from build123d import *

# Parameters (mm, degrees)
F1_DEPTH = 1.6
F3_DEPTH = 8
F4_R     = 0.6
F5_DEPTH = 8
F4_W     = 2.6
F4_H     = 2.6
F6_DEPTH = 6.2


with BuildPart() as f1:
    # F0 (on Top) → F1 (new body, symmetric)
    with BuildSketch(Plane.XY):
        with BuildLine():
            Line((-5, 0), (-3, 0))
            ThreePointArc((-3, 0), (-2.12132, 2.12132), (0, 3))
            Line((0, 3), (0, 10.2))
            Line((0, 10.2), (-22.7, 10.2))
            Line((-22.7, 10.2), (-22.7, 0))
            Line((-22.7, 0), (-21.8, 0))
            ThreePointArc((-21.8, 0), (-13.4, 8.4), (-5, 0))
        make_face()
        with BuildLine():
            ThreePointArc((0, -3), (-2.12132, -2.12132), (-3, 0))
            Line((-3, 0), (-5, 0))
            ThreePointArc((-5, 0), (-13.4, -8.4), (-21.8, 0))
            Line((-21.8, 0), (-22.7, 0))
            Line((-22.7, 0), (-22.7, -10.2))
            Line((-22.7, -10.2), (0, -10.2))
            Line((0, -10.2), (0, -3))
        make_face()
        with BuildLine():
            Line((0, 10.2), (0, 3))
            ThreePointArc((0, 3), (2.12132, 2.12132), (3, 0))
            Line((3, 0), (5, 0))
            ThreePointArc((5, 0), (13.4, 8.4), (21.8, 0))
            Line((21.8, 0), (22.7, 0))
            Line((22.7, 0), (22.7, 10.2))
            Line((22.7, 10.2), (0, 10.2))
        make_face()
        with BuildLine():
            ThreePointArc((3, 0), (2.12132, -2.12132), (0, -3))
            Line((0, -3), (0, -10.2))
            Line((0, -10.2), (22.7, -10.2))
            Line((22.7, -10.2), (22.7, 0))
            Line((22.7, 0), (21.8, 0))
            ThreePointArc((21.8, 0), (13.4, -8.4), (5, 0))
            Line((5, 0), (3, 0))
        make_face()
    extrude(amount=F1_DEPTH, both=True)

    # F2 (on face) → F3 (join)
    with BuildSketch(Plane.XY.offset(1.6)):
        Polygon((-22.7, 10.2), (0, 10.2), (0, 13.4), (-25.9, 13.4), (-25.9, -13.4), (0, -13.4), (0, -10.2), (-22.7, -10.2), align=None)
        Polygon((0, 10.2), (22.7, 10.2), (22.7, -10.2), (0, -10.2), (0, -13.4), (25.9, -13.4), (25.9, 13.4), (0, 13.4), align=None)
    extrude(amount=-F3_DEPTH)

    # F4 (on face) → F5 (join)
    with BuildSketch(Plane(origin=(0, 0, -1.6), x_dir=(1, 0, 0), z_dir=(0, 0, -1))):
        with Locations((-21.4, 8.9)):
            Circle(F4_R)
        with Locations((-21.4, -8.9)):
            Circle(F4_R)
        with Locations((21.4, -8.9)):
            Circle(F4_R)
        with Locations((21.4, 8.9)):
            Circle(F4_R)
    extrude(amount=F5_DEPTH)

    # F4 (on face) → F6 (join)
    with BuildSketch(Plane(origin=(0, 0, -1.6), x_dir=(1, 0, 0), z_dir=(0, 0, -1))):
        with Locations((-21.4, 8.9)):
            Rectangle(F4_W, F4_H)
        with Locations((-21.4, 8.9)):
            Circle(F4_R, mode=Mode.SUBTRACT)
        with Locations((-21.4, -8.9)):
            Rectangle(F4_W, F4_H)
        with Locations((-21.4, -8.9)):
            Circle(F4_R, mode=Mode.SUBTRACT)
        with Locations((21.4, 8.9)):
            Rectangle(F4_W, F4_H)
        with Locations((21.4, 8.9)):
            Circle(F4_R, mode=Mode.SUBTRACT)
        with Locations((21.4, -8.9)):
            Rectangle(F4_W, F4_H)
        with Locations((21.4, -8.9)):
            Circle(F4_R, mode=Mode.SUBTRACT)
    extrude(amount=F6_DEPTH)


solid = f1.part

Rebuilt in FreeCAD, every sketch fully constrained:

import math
import FreeCAD as App
import Part
import Sketcher
from FreeCAD import Vector
Q = App.Units.Quantity

doc = App.newDocument("Part")
body = doc.addObject("PartDesign::Body", "Body")

# Sketch on XY plane
sketch1 = body.newObject("Sketcher::SketchObject", "Sketch")
sketch1.AttachmentSupport = (doc.getObject("XY_Plane"), [""])
sketch1.MapMode = "FlatFace"
sketch1.addGeometry(Part.LineSegment(Vector(22.7, 10.2, 0), Vector(-22.7, 10.2, 0)), False)
sketch1.addGeometry(Part.LineSegment(Vector(-22.7, 10.2, 0), Vector(-22.7, -10.2, 0)), False)
sketch1.addGeometry(Part.LineSegment(Vector(-22.7, -10.2, 0), Vector(22.7, -10.2, 0)), False)
sketch1.addGeometry(Part.LineSegment(Vector(22.7, -10.2, 0), Vector(22.7, 10.2, 0)), False)
sketch1.addGeometry(Part.ArcOfCircle(Part.Circle(Vector(0, 0, 0), Vector(0, 0, 1), 3), math.radians(90), math.radians(180)), False)
sketch1.addGeometry(Part.ArcOfCircle(Part.Circle(Vector(0, 0, 0), Vector(0, 0, 1), 3), math.radians(0), math.radians(90)), False)
sketch1.addGeometry(Part.ArcOfCircle(Part.Circle(Vector(0, 0, 0), Vector(0, 0, 1), 3), math.radians(-90), math.radians(0)), False)
sketch1.addGeometry(Part.ArcOfCircle(Part.Circle(Vector(0, 0, 0), Vector(0, 0, 1), 3), math.radians(-180), math.radians(-90)), False)
sketch1.addGeometry(Part.Circle(Vector(13.4, 0, 0), Vector(0, 0, 1), 8.4), False)
sketch1.addGeometry(Part.Circle(Vector(-13.4, 0, 0), Vector(0, 0, 1), 8.4), False)
sketch1.addConstraint(Sketcher.Constraint("Coincident", 0, 2, 1, 1))
sketch1.addConstraint(Sketcher.Constraint("Coincident", 1, 2, 2, 1))
sketch1.addConstraint(Sketcher.Constraint("Coincident", 2, 2, 3, 1))
sketch1.addConstraint(Sketcher.Constraint("Coincident", 3, 2, 0, 1))
sketch1.addConstraint(Sketcher.Constraint("Tangent", 4, 1, 5, 2))
sketch1.addConstraint(Sketcher.Constraint("Tangent", 5, 1, 6, 2))
sketch1.addConstraint(Sketcher.Constraint("Tangent", 6, 1, 7, 2))
sketch1.addConstraint(Sketcher.Constraint("Tangent", 7, 1, 4, 2))
sketch1.addConstraint(Sketcher.Constraint("Horizontal", 0))
sketch1.addConstraint(Sketcher.Constraint("Vertical", 1))
sketch1.addConstraint(Sketcher.Constraint("Horizontal", 2))
sketch1.addConstraint(Sketcher.Constraint("Vertical", 3))
sketch1.addConstraint(Sketcher.Constraint("Coincident", 4, 3, -1, 1))
sketch1.addConstraint(Sketcher.Constraint("Equal", 4, 5))
sketch1.addConstraint(Sketcher.Constraint("Equal", 8, 9))
sketch1.addConstraint(Sketcher.Constraint("Symmetric", 8, 3, 9, 3, -1, 1))
sketch1.addConstraint(Sketcher.Constraint("Symmetric", 0, 2, 2, 2, -1, 1))
sketch1.addConstraint(Sketcher.Constraint("PointOnObject", 8, 3, -1))
sketch1.addConstraint(Sketcher.Constraint("PointOnObject", 4, 1, -2))
sketch1.addConstraint(Sketcher.Constraint("PointOnObject", 5, 1, -1))
sketch1.addConstraint(Sketcher.Constraint("PointOnObject", 6, 1, -2))
sketch1.addConstraint(Sketcher.Constraint("PointOnObject", 7, 1, -1))
sketch1.addConstraint(Sketcher.Constraint("Radius", 4, Q("3.000001 mm")))
sketch1.addConstraint(Sketcher.Constraint("Diameter", 8, Q("16.8 mm")))
sketch1.addConstraint(Sketcher.Constraint("DistanceX", 0, 2, 0, 1, Q("45.4 mm")))
sketch1.addConstraint(Sketcher.Constraint("DistanceY", 1, 2, 1, 1, Q("20.4 mm")))
sketch1.addConstraint(Sketcher.Constraint("DistanceX", -1, 1, 8, 3, Q("13.4 mm")))
pad1 = body.newObject("PartDesign::Pad", "Pad")
pad1.Profile = sketch1
pad1.Length = 3.2
pad1.Midplane = True

# Sketch on XY plane
sketch2 = body.newObject("Sketcher::SketchObject", "Sketch001")
sketch2.AttachmentSupport = (doc.getObject("XY_Plane"), [""])
sketch2.MapMode = "FlatFace"
sketch2.AttachmentOffset = App.Placement(Vector(0, 0, 1.6), App.Rotation())
sketch2.addGeometry(Part.LineSegment(Vector(-26, 13, 0), Vector(-26, -13, 0)), False)
sketch2.addGeometry(Part.LineSegment(Vector(-26, -13, 0), Vector(26, -13, 0)), False)
sketch2.addGeometry(Part.LineSegment(Vector(26, -13, 0), Vector(26, 13, 0)), False)
sketch2.addGeometry(Part.LineSegment(Vector(26, 13, 0), Vector(-26, 13, 0)), False)
sketch2.addGeometry(Part.LineSegment(Vector(-23, 10, 0), Vector(23, 10, 0)), False)
sketch2.addGeometry(Part.LineSegment(Vector(23, 10, 0), Vector(23, -10, 0)), False)
sketch2.addGeometry(Part.LineSegment(Vector(23, -10, 0), Vector(-23, -10, 0)), False)
sketch2.addGeometry(Part.LineSegment(Vector(-23, -10, 0), Vector(-23, 10, 0)), False)
sketch2.addConstraint(Sketcher.Constraint("Coincident", 0, 2, 1, 1))
sketch2.addConstraint(Sketcher.Constraint("Coincident", 1, 2, 2, 1))
sketch2.addConstraint(Sketcher.Constraint("Coincident", 2, 2, 3, 1))
sketch2.addConstraint(Sketcher.Constraint("Coincident", 3, 2, 0, 1))
sketch2.addConstraint(Sketcher.Constraint("Coincident", 4, 2, 5, 1))
sketch2.addConstraint(Sketcher.Constraint("Coincident", 5, 2, 6, 1))
sketch2.addConstraint(Sketcher.Constraint("Coincident", 6, 2, 7, 1))
sketch2.addConstraint(Sketcher.Constraint("Coincident", 7, 2, 4, 1))
sketch2.addConstraint(Sketcher.Constraint("Vertical", 0))
sketch2.addConstraint(Sketcher.Constraint("Horizontal", 1))
sketch2.addConstraint(Sketcher.Constraint("Vertical", 2))
sketch2.addConstraint(Sketcher.Constraint("Horizontal", 3))
sketch2.addConstraint(Sketcher.Constraint("Horizontal", 4))
sketch2.addConstraint(Sketcher.Constraint("Vertical", 5))
sketch2.addConstraint(Sketcher.Constraint("Horizontal", 6))
sketch2.addConstraint(Sketcher.Constraint("Vertical", 7))
sketch2.addConstraint(Sketcher.Constraint("Symmetric", 0, 2, 2, 2, -1, 1))
sketch2.addConstraint(Sketcher.Constraint("Symmetric", 4, 2, 6, 2, -1, 1))
sketch2.addConstraint(Sketcher.Constraint("DistanceX", 1, 1, 1, 2, Q("51.8 mm")))
sketch2.addConstraint(Sketcher.Constraint("DistanceX", 4, 1, 4, 2, Q("45.4 mm")))
sketch2.addConstraint(Sketcher.Constraint("DistanceY", 0, 2, 0, 1, Q("26.8 mm")))
sketch2.addConstraint(Sketcher.Constraint("DistanceY", 5, 2, 5, 1, Q("20.4 mm")))
pad2 = body.newObject("PartDesign::Pad", "Pad001")
pad2.Profile = sketch2
pad2.Length = 8
pad2.Reversed = True

# Sketch on XY plane
sketch3 = body.newObject("Sketcher::SketchObject", "Sketch002")
sketch3.AttachmentSupport = (doc.getObject("XY_Plane"), [""])
sketch3.MapMode = "FlatFace"
sketch3.AttachmentOffset = App.Placement(Vector(0, 0, -1.6), App.Rotation())
sketch3.addGeometry(Part.Circle(Vector(-21.4, -8.9, 0), Vector(0, 0, 1), 0.6), False)
sketch3.addGeometry(Part.Circle(Vector(-21.4, 8.9, 0), Vector(0, 0, 1), 0.6), False)
sketch3.addGeometry(Part.Circle(Vector(21.4, 8.9, 0), Vector(0, 0, 1), 0.6), False)
sketch3.addGeometry(Part.Circle(Vector(21.4, -8.9, 0), Vector(0, 0, 1), 0.6), False)
sketch3.addConstraint(Sketcher.Constraint("Equal", 0, 1))
sketch3.addConstraint(Sketcher.Constraint("Equal", 1, 2))
sketch3.addConstraint(Sketcher.Constraint("Equal", 2, 3))
sketch3.addConstraint(Sketcher.Constraint("Symmetric", 0, 3, 2, 3, -1, 1))
sketch3.addConstraint(Sketcher.Constraint("Symmetric", 1, 3, 3, 3, -1, 1))
sketch3.addConstraint(Sketcher.Constraint("Symmetric", 1, 3, 2, 3, -2))
sketch3.addConstraint(Sketcher.Constraint("Diameter", 0, Q("1.2 mm")))
sketch3.addConstraint(Sketcher.Constraint("DistanceX", 0, 3, -1, 1, Q("21.4 mm")))
sketch3.addConstraint(Sketcher.Constraint("DistanceY", 0, 3, -1, 1, Q("8.9 mm")))
pad3 = body.newObject("PartDesign::Pad", "Pad002")
pad3.Profile = sketch3
pad3.Length = 8
pad3.Reversed = True

# Sketch on XY plane
sketch4 = body.newObject("Sketcher::SketchObject", "Sketch003")
sketch4.AttachmentSupport = (doc.getObject("XY_Plane"), [""])
sketch4.MapMode = "FlatFace"
sketch4.AttachmentOffset = App.Placement(Vector(0, 0, -1.6), App.Rotation())
sketch4.addGeometry(Part.LineSegment(Vector(-22.7, -10.2, 0), Vector(-22.7, -7.6, 0)), False)
sketch4.addGeometry(Part.LineSegment(Vector(-22.7, -7.6, 0), Vector(-20.1, -7.6, 0)), False)
sketch4.addGeometry(Part.LineSegment(Vector(-20.1, -7.6, 0), Vector(-20.1, -10.2, 0)), False)
sketch4.addGeometry(Part.LineSegment(Vector(-20.1, -10.2, 0), Vector(-22.7, -10.2, 0)), False)
sketch4.addGeometry(Part.Circle(Vector(-21.4, -8.9, 0), Vector(0, 0, 1), 0.6), False)
sketch4.addGeometry(Part.LineSegment(Vector(-22.7, 7.6, 0), Vector(-22.7, 10.2, 0)), False)
sketch4.addGeometry(Part.LineSegment(Vector(-22.7, 10.2, 0), Vector(-20.1, 10.2, 0)), False)
sketch4.addGeometry(Part.LineSegment(Vector(-20.1, 10.2, 0), Vector(-20.1, 7.6, 0)), False)
sketch4.addGeometry(Part.LineSegment(Vector(-20.1, 7.6, 0), Vector(-22.7, 7.6, 0)), False)
sketch4.addGeometry(Part.Circle(Vector(-21.4, 8.9, 0), Vector(0, 0, 1), 0.6), False)
sketch4.addGeometry(Part.LineSegment(Vector(20.1, -10.2, 0), Vector(20.1, -7.6, 0)), False)
sketch4.addGeometry(Part.LineSegment(Vector(20.1, -7.6, 0), Vector(22.7, -7.6, 0)), False)
sketch4.addGeometry(Part.LineSegment(Vector(22.7, -7.6, 0), Vector(22.7, -10.2, 0)), False)
sketch4.addGeometry(Part.LineSegment(Vector(22.7, -10.2, 0), Vector(20.1, -10.2, 0)), False)
sketch4.addGeometry(Part.Circle(Vector(21.4, -8.9, 0), Vector(0, 0, 1), 0.6), False)
sketch4.addGeometry(Part.LineSegment(Vector(20.1, 7.6, 0), Vector(20.1, 10.2, 0)), False)
sketch4.addGeometry(Part.LineSegment(Vector(20.1, 10.2, 0), Vector(22.7, 10.2, 0)), False)
sketch4.addGeometry(Part.LineSegment(Vector(22.7, 10.2, 0), Vector(22.7, 7.6, 0)), False)
sketch4.addGeometry(Part.LineSegment(Vector(22.7, 7.6, 0), Vector(20.1, 7.6, 0)), False)
sketch4.addGeometry(Part.Circle(Vector(21.4, 8.9, 0), Vector(0, 0, 1), 0.6), False)
sketch4.addConstraint(Sketcher.Constraint("Coincident", 0, 2, 1, 1))
sketch4.addConstraint(Sketcher.Constraint("Coincident", 1, 2, 2, 1))
sketch4.addConstraint(Sketcher.Constraint("Coincident", 2, 2, 3, 1))
sketch4.addConstraint(Sketcher.Constraint("Coincident", 3, 2, 0, 1))
sketch4.addConstraint(Sketcher.Constraint("Coincident", 5, 2, 6, 1))
sketch4.addConstraint(Sketcher.Constraint("Coincident", 6, 2, 7, 1))
sketch4.addConstraint(Sketcher.Constraint("Coincident", 7, 2, 8, 1))
sketch4.addConstraint(Sketcher.Constraint("Coincident", 8, 2, 5, 1))
sketch4.addConstraint(Sketcher.Constraint("Coincident", 10, 2, 11, 1))
sketch4.addConstraint(Sketcher.Constraint("Coincident", 11, 2, 12, 1))
sketch4.addConstraint(Sketcher.Constraint("Coincident", 12, 2, 13, 1))
sketch4.addConstraint(Sketcher.Constraint("Coincident", 13, 2, 10, 1))
sketch4.addConstraint(Sketcher.Constraint("Coincident", 15, 2, 16, 1))
sketch4.addConstraint(Sketcher.Constraint("Coincident", 16, 2, 17, 1))
sketch4.addConstraint(Sketcher.Constraint("Coincident", 17, 2, 18, 1))
sketch4.addConstraint(Sketcher.Constraint("Coincident", 18, 2, 15, 1))
sketch4.addConstraint(Sketcher.Constraint("Vertical", 0))
sketch4.addConstraint(Sketcher.Constraint("Horizontal", 1))
sketch4.addConstraint(Sketcher.Constraint("Vertical", 2))
sketch4.addConstraint(Sketcher.Constraint("Horizontal", 3))
sketch4.addConstraint(Sketcher.Constraint("Vertical", 5))
sketch4.addConstraint(Sketcher.Constraint("Horizontal", 6))
sketch4.addConstraint(Sketcher.Constraint("Vertical", 7))
sketch4.addConstraint(Sketcher.Constraint("Horizontal", 8))
sketch4.addConstraint(Sketcher.Constraint("Vertical", 10))
sketch4.addConstraint(Sketcher.Constraint("Horizontal", 11))
sketch4.addConstraint(Sketcher.Constraint("Vertical", 12))
sketch4.addConstraint(Sketcher.Constraint("Horizontal", 13))
sketch4.addConstraint(Sketcher.Constraint("Vertical", 15))
sketch4.addConstraint(Sketcher.Constraint("Horizontal", 16))
sketch4.addConstraint(Sketcher.Constraint("Vertical", 17))
sketch4.addConstraint(Sketcher.Constraint("Horizontal", 18))
sketch4.addConstraint(Sketcher.Constraint("Equal", 4, 9))
sketch4.addConstraint(Sketcher.Constraint("Equal", 9, 14))
sketch4.addConstraint(Sketcher.Constraint("Equal", 14, 19))
sketch4.addConstraint(Sketcher.Constraint("Symmetric", 9, 3, 14, 3, -1, 1))
sketch4.addConstraint(Sketcher.Constraint("Symmetric", 4, 3, 19, 3, -1, 1))
sketch4.addConstraint(Sketcher.Constraint("Symmetric", 7, 2, 10, 2, -1, 1))
sketch4.addConstraint(Sketcher.Constraint("Symmetric", 5, 2, 12, 2, -1, 1))
sketch4.addConstraint(Sketcher.Constraint("Symmetric", 2, 2, 15, 2, -1, 1))
sketch4.addConstraint(Sketcher.Constraint("Symmetric", 0, 2, 17, 2, -1, 1))
sketch4.addConstraint(Sketcher.Constraint("Symmetric", 4, 3, 14, 3, -2))
sketch4.addConstraint(Sketcher.Constraint("Symmetric", 1, 2, 10, 2, -2))
sketch4.addConstraint(Sketcher.Constraint("Symmetric", 3, 2, 12, 2, -2))
sketch4.addConstraint(Sketcher.Constraint("Equal", 18, 0))
sketch4.addConstraint(Sketcher.Constraint("Diameter", 4, Q("1.2 mm")))
sketch4.addConstraint(Sketcher.Constraint("DistanceX", 1, 1, 1, 2, Q("2.6 mm")))
sketch4.addConstraint(Sketcher.Constraint("DistanceX", 4, 3, -1, 1, Q("21.4 mm")))
sketch4.addConstraint(Sketcher.Constraint("DistanceY", 4, 3, -1, 1, Q("8.9 mm")))
sketch4.addConstraint(Sketcher.Constraint("DistanceX", 0, 2, -1, 1, Q("22.7 mm")))
sketch4.addConstraint(Sketcher.Constraint("DistanceY", 0, 2, -1, 1, Q("7.6 mm")))
pad4 = body.newObject("PartDesign::Pad", "Pad003")
pad4.Profile = sketch4
pad4.Length = 6.2
pad4.Reversed = True

doc.recompute()
